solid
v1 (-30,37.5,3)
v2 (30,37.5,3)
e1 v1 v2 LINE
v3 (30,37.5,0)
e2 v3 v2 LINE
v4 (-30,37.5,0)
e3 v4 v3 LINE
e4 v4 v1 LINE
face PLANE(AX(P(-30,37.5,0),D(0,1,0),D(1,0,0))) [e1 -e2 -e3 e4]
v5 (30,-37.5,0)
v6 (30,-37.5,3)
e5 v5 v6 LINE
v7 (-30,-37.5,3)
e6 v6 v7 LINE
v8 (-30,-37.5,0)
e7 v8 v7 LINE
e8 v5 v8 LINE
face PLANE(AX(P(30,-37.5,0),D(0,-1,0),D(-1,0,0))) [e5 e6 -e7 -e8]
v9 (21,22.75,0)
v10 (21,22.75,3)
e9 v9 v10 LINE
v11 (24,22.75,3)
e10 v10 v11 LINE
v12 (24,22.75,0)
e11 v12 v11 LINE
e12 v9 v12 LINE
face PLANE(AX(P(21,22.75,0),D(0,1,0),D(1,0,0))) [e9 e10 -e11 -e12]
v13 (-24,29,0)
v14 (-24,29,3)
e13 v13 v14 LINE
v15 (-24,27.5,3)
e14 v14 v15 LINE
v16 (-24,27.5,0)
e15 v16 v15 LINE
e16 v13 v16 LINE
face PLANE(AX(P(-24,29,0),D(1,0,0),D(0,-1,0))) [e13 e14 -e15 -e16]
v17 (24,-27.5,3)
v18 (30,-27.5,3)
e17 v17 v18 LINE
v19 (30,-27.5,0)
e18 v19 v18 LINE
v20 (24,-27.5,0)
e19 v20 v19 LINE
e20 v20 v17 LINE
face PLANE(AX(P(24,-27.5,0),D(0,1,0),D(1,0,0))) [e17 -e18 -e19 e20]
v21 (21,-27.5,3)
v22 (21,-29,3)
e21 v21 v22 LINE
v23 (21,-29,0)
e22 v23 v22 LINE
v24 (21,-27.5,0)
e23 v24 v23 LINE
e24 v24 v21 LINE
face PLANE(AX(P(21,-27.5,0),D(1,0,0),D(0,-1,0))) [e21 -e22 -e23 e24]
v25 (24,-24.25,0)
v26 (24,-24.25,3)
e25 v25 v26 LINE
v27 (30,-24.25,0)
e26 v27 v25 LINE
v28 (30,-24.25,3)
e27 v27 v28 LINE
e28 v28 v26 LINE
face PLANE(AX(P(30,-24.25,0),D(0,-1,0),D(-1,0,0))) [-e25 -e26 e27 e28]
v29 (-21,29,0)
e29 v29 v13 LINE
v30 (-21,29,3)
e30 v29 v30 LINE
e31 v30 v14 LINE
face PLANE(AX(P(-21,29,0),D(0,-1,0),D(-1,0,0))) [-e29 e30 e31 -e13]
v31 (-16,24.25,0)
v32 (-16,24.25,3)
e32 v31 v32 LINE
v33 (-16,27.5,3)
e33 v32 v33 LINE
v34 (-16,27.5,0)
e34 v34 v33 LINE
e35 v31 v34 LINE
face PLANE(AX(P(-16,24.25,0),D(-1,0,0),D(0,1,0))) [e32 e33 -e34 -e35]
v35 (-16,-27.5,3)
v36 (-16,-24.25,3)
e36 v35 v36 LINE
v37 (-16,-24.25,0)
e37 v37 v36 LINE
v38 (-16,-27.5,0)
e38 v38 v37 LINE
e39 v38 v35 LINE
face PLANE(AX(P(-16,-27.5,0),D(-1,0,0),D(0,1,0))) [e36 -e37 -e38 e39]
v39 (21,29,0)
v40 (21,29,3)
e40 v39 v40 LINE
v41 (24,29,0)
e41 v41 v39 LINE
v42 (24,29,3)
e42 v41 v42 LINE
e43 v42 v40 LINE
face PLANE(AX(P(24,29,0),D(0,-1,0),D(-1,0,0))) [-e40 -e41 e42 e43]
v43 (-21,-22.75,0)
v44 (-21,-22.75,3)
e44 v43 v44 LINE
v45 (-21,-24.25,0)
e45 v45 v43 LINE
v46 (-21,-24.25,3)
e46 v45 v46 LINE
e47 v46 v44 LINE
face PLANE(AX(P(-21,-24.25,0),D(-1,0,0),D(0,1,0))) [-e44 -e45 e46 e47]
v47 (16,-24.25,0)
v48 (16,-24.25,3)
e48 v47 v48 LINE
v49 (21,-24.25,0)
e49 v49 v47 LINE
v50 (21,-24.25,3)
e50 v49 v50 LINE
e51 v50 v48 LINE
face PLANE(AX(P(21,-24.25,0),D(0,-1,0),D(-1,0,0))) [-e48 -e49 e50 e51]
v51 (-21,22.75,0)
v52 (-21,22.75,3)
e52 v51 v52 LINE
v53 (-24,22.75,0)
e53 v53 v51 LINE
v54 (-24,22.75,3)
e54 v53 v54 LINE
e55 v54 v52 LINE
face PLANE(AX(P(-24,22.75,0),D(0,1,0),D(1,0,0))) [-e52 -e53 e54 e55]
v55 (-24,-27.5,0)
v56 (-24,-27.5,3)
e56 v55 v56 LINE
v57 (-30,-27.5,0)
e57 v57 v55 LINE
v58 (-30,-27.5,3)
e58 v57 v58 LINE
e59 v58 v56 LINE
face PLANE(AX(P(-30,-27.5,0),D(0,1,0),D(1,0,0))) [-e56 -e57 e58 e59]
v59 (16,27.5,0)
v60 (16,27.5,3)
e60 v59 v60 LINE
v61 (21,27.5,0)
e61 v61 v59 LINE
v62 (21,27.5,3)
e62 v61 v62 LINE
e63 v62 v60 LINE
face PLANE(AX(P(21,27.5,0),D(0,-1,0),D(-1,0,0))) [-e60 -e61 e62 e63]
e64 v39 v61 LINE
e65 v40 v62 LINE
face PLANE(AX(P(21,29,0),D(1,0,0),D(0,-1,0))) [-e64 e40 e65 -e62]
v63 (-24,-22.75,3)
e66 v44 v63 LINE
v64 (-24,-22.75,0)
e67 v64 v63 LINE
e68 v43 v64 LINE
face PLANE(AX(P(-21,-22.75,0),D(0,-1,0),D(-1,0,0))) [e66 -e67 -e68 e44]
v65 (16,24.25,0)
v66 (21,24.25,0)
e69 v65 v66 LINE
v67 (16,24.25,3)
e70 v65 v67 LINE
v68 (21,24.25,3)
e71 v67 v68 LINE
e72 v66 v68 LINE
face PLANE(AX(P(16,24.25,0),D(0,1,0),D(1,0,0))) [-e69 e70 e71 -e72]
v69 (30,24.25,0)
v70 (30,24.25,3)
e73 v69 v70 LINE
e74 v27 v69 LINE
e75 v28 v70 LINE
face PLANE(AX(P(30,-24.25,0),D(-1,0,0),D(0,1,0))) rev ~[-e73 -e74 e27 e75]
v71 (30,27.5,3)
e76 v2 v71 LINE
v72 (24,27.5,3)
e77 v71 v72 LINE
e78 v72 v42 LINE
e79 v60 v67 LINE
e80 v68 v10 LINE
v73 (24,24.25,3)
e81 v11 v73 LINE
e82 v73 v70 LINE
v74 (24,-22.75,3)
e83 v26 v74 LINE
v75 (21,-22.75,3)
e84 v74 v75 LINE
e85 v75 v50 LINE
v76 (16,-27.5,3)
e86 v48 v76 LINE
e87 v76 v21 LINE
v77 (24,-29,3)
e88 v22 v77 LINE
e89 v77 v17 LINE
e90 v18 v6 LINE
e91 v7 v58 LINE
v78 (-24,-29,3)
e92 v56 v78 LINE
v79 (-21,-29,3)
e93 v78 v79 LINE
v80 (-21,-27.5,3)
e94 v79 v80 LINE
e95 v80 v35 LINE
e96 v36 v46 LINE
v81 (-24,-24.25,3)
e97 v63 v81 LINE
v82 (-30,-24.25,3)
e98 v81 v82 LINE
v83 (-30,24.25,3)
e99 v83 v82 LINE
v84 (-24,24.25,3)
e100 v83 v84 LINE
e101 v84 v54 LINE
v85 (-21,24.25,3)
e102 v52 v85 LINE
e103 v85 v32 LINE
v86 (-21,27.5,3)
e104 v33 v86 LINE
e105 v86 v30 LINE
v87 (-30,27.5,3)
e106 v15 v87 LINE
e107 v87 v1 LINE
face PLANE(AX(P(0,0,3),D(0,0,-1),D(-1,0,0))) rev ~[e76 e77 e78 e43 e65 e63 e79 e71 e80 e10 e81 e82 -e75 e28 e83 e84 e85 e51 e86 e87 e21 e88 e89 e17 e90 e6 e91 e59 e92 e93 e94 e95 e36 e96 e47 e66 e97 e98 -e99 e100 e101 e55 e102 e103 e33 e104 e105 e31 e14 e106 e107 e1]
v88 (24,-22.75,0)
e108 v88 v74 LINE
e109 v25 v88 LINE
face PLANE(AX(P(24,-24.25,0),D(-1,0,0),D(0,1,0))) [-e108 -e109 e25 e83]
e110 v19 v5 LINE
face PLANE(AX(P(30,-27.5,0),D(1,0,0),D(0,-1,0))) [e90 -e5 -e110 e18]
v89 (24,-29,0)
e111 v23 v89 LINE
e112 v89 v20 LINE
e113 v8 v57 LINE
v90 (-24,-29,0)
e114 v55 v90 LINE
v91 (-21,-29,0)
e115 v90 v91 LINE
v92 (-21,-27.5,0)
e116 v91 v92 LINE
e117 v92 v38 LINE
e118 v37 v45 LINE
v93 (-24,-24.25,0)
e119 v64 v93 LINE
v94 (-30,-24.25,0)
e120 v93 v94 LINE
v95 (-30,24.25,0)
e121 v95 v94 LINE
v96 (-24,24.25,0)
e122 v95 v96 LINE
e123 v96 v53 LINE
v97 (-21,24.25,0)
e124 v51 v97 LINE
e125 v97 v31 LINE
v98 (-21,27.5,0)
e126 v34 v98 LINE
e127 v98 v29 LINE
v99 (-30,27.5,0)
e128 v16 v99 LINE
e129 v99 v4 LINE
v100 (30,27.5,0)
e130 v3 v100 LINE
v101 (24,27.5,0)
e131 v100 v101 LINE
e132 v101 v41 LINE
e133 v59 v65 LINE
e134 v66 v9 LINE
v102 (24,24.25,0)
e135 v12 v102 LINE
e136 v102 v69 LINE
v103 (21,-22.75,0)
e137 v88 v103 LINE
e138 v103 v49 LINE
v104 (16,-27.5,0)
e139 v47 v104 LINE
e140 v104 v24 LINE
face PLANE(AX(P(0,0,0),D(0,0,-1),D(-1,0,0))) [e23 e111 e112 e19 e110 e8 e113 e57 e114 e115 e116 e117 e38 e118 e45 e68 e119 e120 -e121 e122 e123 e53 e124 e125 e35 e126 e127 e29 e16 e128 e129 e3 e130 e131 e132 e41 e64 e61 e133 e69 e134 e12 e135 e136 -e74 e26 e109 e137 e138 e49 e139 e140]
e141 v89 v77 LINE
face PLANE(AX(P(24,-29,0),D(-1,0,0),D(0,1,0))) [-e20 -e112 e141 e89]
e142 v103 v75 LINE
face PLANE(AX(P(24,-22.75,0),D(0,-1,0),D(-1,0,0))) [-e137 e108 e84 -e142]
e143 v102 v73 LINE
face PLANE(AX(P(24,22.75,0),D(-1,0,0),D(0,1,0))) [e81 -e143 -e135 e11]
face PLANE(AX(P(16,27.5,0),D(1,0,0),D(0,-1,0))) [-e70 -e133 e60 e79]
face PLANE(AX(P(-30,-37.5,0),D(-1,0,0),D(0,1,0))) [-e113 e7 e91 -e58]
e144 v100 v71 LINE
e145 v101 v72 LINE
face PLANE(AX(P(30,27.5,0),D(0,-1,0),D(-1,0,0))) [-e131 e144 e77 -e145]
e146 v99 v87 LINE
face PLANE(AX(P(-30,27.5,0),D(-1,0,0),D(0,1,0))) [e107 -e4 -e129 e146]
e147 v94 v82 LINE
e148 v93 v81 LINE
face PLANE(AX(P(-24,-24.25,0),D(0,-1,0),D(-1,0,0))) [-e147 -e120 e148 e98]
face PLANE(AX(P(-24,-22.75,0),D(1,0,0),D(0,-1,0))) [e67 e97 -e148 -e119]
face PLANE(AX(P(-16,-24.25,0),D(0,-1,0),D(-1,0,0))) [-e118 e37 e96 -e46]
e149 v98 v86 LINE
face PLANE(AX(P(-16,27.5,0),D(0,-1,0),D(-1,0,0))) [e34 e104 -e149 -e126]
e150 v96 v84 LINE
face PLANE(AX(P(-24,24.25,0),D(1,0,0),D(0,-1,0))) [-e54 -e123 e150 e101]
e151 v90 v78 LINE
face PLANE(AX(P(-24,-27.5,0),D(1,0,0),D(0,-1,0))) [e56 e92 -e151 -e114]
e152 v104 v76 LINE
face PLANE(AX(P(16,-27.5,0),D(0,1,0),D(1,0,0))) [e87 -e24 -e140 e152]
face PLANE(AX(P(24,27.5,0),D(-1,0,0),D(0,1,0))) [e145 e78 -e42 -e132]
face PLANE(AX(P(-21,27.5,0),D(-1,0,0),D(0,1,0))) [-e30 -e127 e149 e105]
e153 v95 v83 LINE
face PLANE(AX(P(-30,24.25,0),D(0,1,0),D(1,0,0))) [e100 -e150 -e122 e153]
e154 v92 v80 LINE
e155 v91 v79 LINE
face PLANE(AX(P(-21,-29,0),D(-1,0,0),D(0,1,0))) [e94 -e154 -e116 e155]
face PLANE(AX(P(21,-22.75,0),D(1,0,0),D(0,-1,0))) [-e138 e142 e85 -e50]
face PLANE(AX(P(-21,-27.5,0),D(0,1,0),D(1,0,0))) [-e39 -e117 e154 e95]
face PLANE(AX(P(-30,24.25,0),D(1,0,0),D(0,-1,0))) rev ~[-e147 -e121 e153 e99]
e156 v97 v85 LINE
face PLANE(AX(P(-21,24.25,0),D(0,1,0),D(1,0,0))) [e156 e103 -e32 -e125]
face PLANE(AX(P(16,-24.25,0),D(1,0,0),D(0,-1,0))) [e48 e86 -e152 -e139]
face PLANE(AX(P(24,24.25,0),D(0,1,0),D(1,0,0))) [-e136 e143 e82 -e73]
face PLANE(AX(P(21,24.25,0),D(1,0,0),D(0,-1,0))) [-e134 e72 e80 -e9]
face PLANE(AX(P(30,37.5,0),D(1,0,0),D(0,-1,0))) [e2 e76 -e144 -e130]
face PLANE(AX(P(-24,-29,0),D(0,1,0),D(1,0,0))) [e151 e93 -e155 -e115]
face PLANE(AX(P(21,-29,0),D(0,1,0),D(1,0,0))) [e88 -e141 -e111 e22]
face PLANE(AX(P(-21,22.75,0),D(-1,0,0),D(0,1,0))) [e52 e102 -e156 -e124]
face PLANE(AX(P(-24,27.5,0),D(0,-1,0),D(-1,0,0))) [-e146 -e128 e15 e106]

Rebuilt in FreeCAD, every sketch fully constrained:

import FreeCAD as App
import Part
import Sketcher
from FreeCAD import Vector

doc = App.newDocument("Part")
body = doc.addObject("PartDesign::Body", "Body")

sketch1 = body.newObject("Sketcher::SketchObject", "Sketch")
sketch1.AttachmentSupport = (doc.getObject("XY_Plane"), [""])
sketch1.MapMode = "FlatFace"
sketch1.addGeometry([
    Part.LineSegment(Vector(30, 37.5, 0), Vector(-30, 37.5, 0)),
    Part.LineSegment(Vector(-30, 37.5, 0), Vector(-30, 27.5, 0)),
    Part.LineSegment(Vector(-30, 27.5, 0), Vector(-24, 27.5, 0)),
    Part.LineSegment(Vector(-24, 27.5, 0), Vector(-24, 29, 0)),
    Part.LineSegment(Vector(-24, 29, 0), Vector(-21, 29, 0)),
    Part.LineSegment(Vector(-21, 29, 0), Vector(-21, 27.5, 0)),
    Part.LineSegment(Vector(-21, 27.5, 0), Vector(-16, 27.5, 0)),
    Part.LineSegment(Vector(-16, 27.5, 0), Vector(-16, 24.2, 0)),
    Part.LineSegment(Vector(-16, 24.2, 0), Vector(-21, 24.2, 0)),
    Part.LineSegment(Vector(-21, 24.2, 0), Vector(-21, 22.8, 0)),
    Part.LineSegment(Vector(-21, 22.8, 0), Vector(-24, 22.8, 0)),
    Part.LineSegment(Vector(-24, 22.8, 0), Vector(-24, 24.2, 0)),
    Part.LineSegment(Vector(-24, 24.2, 0), Vector(-30, 24.2, 0)),
    Part.LineSegment(Vector(-30, 24.2, 0), Vector(-30, -24.2, 0)),
    Part.LineSegment(Vector(-30, -24.2, 0), Vector(-24, -24.2, 0)),
    Part.LineSegment(Vector(-24, -24.2, 0), Vector(-24, -22.8, 0)),
    Part.LineSegment(Vector(-24, -22.8, 0), Vector(-21, -22.8, 0)),
    Part.LineSegment(Vector(-21, -22.8, 0), Vector(-21, -24.2, 0)),
    Part.LineSegment(Vector(-21, -24.2, 0), Vector(-16, -24.2, 0)),
    Part.LineSegment(Vector(-16, -24.2, 0), Vector(-16, -27.5, 0)),
    Part.LineSegment(Vector(-16, -27.5, 0), Vector(-21, -27.5, 0)),
    Part.LineSegment(Vector(-21, -27.5, 0), Vector(-21, -29, 0)),
    Part.LineSegment(Vector(-21, -29, 0), Vector(-24, -29, 0)),
    Part.LineSegment(Vector(-24, -29, 0), Vector(-24, -27.5, 0)),
    Part.LineSegment(Vector(-24, -27.5, 0), Vector(-30, -27.5, 0)),
    Part.LineSegment(Vector(-30, -27.5, 0), Vector(-30, -37.5, 0)),
    Part.LineSegment(Vector(-30, -37.5, 0), Vector(30, -37.5, 0)),
    Part.LineSegment(Vector(30, -37.5, 0), Vector(30, -27.5, 0)),
    Part.LineSegment(Vector(30, -27.5, 0), Vector(24, -27.5, 0)),
    Part.LineSegment(Vector(24, -27.5, 0), Vector(24, -29, 0)),
    Part.LineSegment(Vector(24, -29, 0), Vector(21, -29, 0)),
    Part.LineSegment(Vector(21, -29, 0), Vector(21, -27.5, 0)),
    Part.LineSegment(Vector(21, -27.5, 0), Vector(16, -27.5, 0)),
    Part.LineSegment(Vector(16, -27.5, 0), Vector(16, -24.2, 0)),
    Part.LineSegment(Vector(16, -24.2, 0), Vector(21, -24.2, 0)),
    Part.LineSegment(Vector(21, -24.2, 0), Vector(21, -22.8, 0)),
    Part.LineSegment(Vector(21, -22.8, 0), Vector(24, -22.8, 0)),
    Part.LineSegment(Vector(24, -22.8, 0), Vector(24, -24.2, 0)),
    Part.LineSegment(Vector(24, -24.2, 0), Vector(30, -24.2, 0)),
    Part.LineSegment(Vector(30, -24.2, 0), Vector(30, 24.2, 0)),
    Part.LineSegment(Vector(30, 24.2, 0), Vector(24, 24.2, 0)),
    Part.LineSegment(Vector(24, 24.2, 0), Vector(24, 22.8, 0)),
    Part.LineSegment(Vector(24, 22.8, 0), Vector(21, 22.8, 0)),
    Part.LineSegment(Vector(21, 22.8, 0), Vector(21, 24.2, 0)),
    Part.LineSegment(Vector(21, 24.2, 0), Vector(16, 24.2, 0)),
    Part.LineSegment(Vector(16, 24.2, 0), Vector(16, 27.5, 0)),
    Part.LineSegment(Vector(16, 27.5, 0), Vector(21, 27.5, 0)),
    Part.LineSegment(Vector(21, 27.5, 0), Vector(21, 29, 0)),
    Part.LineSegment(Vector(21, 29, 0), Vector(24, 29, 0)),
    Part.LineSegment(Vector(24, 29, 0), Vector(24, 27.5, 0)),
    Part.LineSegment(Vector(24, 27.5, 0), Vector(30, 27.5, 0)),
    Part.LineSegment(Vector(30, 27.5, 0), Vector(30, 37.5, 0)),
], False)
sketch1.addConstraint([
    Sketcher.Constraint("Coincident", 0, 2, 1, 1),
    Sketcher.Constraint("Coincident", 1, 2, 2, 1),
    Sketcher.Constraint("Coincident", 2, 2, 3, 1),
    Sketcher.Constraint("Coincident", 3, 2, 4, 1),
    Sketcher.Constraint("Coincident", 4, 2, 5, 1),
    Sketcher.Constraint("Coincident", 5, 2, 6, 1),
    Sketcher.Constraint("Coincident", 6, 2, 7, 1),
    Sketcher.Constraint("Coincident", 7, 2, 8, 1),
    Sketcher.Constraint("Coincident", 8, 2, 9, 1),
    Sketcher.Constraint("Coincident", 9, 2, 10, 1),
    Sketcher.Constraint("Coincident", 10, 2, 11, 1),
    Sketcher.Constraint("Coincident", 11, 2, 12, 1),
    Sketcher.Constraint("Coincident", 12, 2, 13, 1),
    Sketcher.Constraint("Coincident", 13, 2, 14, 1),
    Sketcher.Constraint("Coincident", 14, 2, 15, 1),
    Sketcher.Constraint("Coincident", 15, 2, 16, 1),
    Sketcher.Constraint("Coincident", 16, 2, 17, 1),
    Sketcher.Constraint("Coincident", 17, 2, 18, 1),
    Sketcher.Constraint("Coincident", 18, 2, 19, 1),
    Sketcher.Constraint("Coincident", 19, 2, 20, 1),
    Sketcher.Constraint("Coincident", 20, 2, 21, 1),
    Sketcher.Constraint("Coincident", 21, 2, 22, 1),
    Sketcher.Constraint("Coincident", 22, 2, 23, 1),
    Sketcher.Constraint("Coincident", 23, 2, 24, 1),
    Sketcher.Constraint("Coincident", 24, 2, 25, 1),
    Sketcher.Constraint("Coincident", 25, 2, 26, 1),
    Sketcher.Constraint("Coincident", 26, 2, 27, 1),
    Sketcher.Constraint("Coincident", 27, 2, 28, 1),
    Sketcher.Constraint("Coincident", 28, 2, 29, 1),
    Sketcher.Constraint("Coincident", 29, 2, 30, 1),
    Sketcher.Constraint("Coincident", 30, 2, 31, 1),
    Sketcher.Constraint("Coincident", 31, 2, 32, 1),
    Sketcher.Constraint("Coincident", 32, 2, 33, 1),
    Sketcher.Constraint("Coincident", 33, 2, 34, 1),
    Sketcher.Constraint("Coincident", 34, 2, 35, 1),
    Sketcher.Constraint("Coincident", 35, 2, 36, 1),
    Sketcher.Constraint("Coincident", 36, 2, 37, 1),
    Sketcher.Constraint("Coincident", 37, 2, 38, 1),
    Sketcher.Constraint("Coincident", 38, 2, 39, 1),
    Sketcher.Constraint("Coincident", 39, 2, 40, 1),
    Sketcher.Constraint("Coincident", 40, 2, 41, 1),
    Sketcher.Constraint("Coincident", 41, 2, 42, 1),
    Sketcher.Constraint("Coincident", 42, 2, 43, 1),
    Sketcher.Constraint("Coincident", 43, 2, 44, 1),
    Sketcher.Constraint("Coincident", 44, 2, 45, 1),
    Sketcher.Constraint("Coincident", 45, 2, 46, 1),
    Sketcher.Constraint("Coincident", 46, 2, 47, 1),
    Sketcher.Constraint("Coincident", 47, 2, 48, 1),
    Sketcher.Constraint("Coincident", 48, 2, 49, 1),
    Sketcher.Constraint("Coincident", 49, 2, 50, 1),
    Sketcher.Constraint("Coincident", 50, 2, 51, 1),
    Sketcher.Constraint("Coincident", 51, 2, 0, 1),
    Sketcher.Constraint("Horizontal", 0),
    Sketcher.Constraint("Vertical", 1),
    Sketcher.Constraint("Horizontal", 2),
    Sketcher.Constraint("Vertical", 3),
    Sketcher.Constraint("Horizontal", 4),
    Sketcher.Constraint("Vertical", 5),
    Sketcher.Constraint("Horizontal", 6),
    Sketcher.Constraint("Vertical", 7),
    Sketcher.Constraint("Horizontal", 8),
    Sketcher.Constraint("Vertical", 9),
    Sketcher.Constraint("Horizontal", 10),
    Sketcher.Constraint("Vertical", 11),
    Sketcher.Constraint("Horizontal", 12),
    Sketcher.Constraint("Vertical", 13),
    Sketcher.Constraint("Horizontal", 14),
    Sketcher.Constraint("Vertical", 15),
    Sketcher.Constraint("Horizontal", 16),
    Sketcher.Constraint("Vertical", 17),
    Sketcher.Constraint("Horizontal", 18),
    Sketcher.Constraint("Vertical", 19),
    Sketcher.Constraint("Horizontal", 20),
    Sketcher.Constraint("Vertical", 21),
    Sketcher.Constraint("Horizontal", 22),
    Sketcher.Constraint("Vertical", 23),
    Sketcher.Constraint("Horizontal", 24),
    Sketcher.Constraint("Vertical", 25),
    Sketcher.Constraint("Horizontal", 26),
    Sketcher.Constraint("Vertical", 27),
    Sketcher.Constraint("Horizontal", 28),
    Sketcher.Constraint("Vertical", 29),
    Sketcher.Constraint("Horizontal", 30),
    Sketcher.Constraint("Vertical", 31),
    Sketcher.Constraint("Horizontal", 32),
    Sketcher.Constraint("Vertical", 33),
    Sketcher.Constraint("Horizontal", 34),
    Sketcher.Constraint("Vertical", 35),
    Sketcher.Constraint("Horizontal", 36),
    Sketcher.Constraint("Vertical", 37),
    Sketcher.Constraint("Horizontal", 38),
    Sketcher.Constraint("Vertical", 39),
    Sketcher.Constraint("Horizontal", 40),
    Sketcher.Constraint("Vertical", 41),
    Sketcher.Constraint("Horizontal", 42),
    Sketcher.Constraint("Vertical", 43),
    Sketcher.Constraint("Horizontal", 44),
    Sketcher.Constraint("Vertical", 45),
    Sketcher.Constraint("Horizontal", 46),
    Sketcher.Constraint("Vertical", 47),
    Sketcher.Constraint("Horizontal", 48),
    Sketcher.Constraint("Vertical", 49),
    Sketcher.Constraint("Horizontal", 50),
    Sketcher.Constraint("Vertical", 51),
    Sketcher.Constraint("Symmetric", 0, 2, 26, 2, -1, 1),
    Sketcher.Constraint("Symmetric", 2, 2, 28, 2, -1, 1),
    Sketcher.Constraint("Symmetric", 4, 2, 30, 2, -1, 1),
    Sketcher.Constraint("Symmetric", 6, 2, 32, 2, -1, 1),
    Sketcher.Constraint("Symmetric", 8, 2, 34, 2, -1, 1),
    Sketcher.Constraint("Symmetric", 10, 2, 36, 2, -1, 1),
    Sketcher.Constraint("Symmetric", 12, 2, 38, 2, -1, 1),
    Sketcher.Constraint("Symmetric", 14, 2, 40, 2, -1, 1),
    Sketcher.Constraint("Symmetric", 16, 2, 42, 2, -1, 1),
    Sketcher.Constraint("Symmetric", 18, 2, 44, 2, -1, 1),
    Sketcher.Constraint("Symmetric", 20, 2, 46, 2, -1, 1),
    Sketcher.Constraint("Symmetric", 22, 2, 48, 2, -1, 1),
    Sketcher.Constraint("Symmetric", 24, 2, 50, 2, -1, 1),
    Sketcher.Constraint("Symmetric", 24, 2, 27, 2, -2),
    Sketcher.Constraint("Symmetric", 22, 2, 29, 2, -2),
    Sketcher.Constraint("Symmetric", 20, 2, 31, 2, -2),
    Sketcher.Constraint("Symmetric", 18, 2, 33, 2, -2),
    Sketcher.Constraint("Symmetric", 16, 2, 35, 2, -2),
    Sketcher.Constraint("Symmetric", 14, 2, 37, 2, -2),
    Sketcher.Constraint("Horizontal", 2, 2, 5, 2),
    Sketcher.Constraint("Horizontal", 8, 2, 11, 2),
    Sketcher.Constraint("Vertical", 5, 2, 8, 2),
    Sketcher.Constraint("Vertical", 3, 2, 10, 2),
    Sketcher.Constraint("Vertical", 1, 2, 12, 2),
    Sketcher.Constraint("Equal", 5, 9),
    Sketcher.Constraint("DistanceX", 0, 2, 0, 1, 60.0),
    Sketcher.Constraint("DistanceX", 2, 1, 2, 2, 6.0),
    Sketcher.Constraint("DistanceX", 4, 1, 4, 2, 3.0),
    Sketcher.Constraint("DistanceX", 6, 1, 6, 2, 5.0),
    Sketcher.Constraint("DistanceY", 1, 2, 1, 1, 10.0),
    Sketcher.Constraint("DistanceY", 3, 1, 3, 2, 1.5),
    Sketcher.Constraint("DistanceY", 13, 2, 13, 1, 48.5),
    Sketcher.Constraint("DistanceY", -1, 1, 3, 2, 29.0),
])
pad1 = body.newObject("PartDesign::Pad", "Pad")
pad1.Profile = sketch1
pad1.Length = 3

doc.recompute()
